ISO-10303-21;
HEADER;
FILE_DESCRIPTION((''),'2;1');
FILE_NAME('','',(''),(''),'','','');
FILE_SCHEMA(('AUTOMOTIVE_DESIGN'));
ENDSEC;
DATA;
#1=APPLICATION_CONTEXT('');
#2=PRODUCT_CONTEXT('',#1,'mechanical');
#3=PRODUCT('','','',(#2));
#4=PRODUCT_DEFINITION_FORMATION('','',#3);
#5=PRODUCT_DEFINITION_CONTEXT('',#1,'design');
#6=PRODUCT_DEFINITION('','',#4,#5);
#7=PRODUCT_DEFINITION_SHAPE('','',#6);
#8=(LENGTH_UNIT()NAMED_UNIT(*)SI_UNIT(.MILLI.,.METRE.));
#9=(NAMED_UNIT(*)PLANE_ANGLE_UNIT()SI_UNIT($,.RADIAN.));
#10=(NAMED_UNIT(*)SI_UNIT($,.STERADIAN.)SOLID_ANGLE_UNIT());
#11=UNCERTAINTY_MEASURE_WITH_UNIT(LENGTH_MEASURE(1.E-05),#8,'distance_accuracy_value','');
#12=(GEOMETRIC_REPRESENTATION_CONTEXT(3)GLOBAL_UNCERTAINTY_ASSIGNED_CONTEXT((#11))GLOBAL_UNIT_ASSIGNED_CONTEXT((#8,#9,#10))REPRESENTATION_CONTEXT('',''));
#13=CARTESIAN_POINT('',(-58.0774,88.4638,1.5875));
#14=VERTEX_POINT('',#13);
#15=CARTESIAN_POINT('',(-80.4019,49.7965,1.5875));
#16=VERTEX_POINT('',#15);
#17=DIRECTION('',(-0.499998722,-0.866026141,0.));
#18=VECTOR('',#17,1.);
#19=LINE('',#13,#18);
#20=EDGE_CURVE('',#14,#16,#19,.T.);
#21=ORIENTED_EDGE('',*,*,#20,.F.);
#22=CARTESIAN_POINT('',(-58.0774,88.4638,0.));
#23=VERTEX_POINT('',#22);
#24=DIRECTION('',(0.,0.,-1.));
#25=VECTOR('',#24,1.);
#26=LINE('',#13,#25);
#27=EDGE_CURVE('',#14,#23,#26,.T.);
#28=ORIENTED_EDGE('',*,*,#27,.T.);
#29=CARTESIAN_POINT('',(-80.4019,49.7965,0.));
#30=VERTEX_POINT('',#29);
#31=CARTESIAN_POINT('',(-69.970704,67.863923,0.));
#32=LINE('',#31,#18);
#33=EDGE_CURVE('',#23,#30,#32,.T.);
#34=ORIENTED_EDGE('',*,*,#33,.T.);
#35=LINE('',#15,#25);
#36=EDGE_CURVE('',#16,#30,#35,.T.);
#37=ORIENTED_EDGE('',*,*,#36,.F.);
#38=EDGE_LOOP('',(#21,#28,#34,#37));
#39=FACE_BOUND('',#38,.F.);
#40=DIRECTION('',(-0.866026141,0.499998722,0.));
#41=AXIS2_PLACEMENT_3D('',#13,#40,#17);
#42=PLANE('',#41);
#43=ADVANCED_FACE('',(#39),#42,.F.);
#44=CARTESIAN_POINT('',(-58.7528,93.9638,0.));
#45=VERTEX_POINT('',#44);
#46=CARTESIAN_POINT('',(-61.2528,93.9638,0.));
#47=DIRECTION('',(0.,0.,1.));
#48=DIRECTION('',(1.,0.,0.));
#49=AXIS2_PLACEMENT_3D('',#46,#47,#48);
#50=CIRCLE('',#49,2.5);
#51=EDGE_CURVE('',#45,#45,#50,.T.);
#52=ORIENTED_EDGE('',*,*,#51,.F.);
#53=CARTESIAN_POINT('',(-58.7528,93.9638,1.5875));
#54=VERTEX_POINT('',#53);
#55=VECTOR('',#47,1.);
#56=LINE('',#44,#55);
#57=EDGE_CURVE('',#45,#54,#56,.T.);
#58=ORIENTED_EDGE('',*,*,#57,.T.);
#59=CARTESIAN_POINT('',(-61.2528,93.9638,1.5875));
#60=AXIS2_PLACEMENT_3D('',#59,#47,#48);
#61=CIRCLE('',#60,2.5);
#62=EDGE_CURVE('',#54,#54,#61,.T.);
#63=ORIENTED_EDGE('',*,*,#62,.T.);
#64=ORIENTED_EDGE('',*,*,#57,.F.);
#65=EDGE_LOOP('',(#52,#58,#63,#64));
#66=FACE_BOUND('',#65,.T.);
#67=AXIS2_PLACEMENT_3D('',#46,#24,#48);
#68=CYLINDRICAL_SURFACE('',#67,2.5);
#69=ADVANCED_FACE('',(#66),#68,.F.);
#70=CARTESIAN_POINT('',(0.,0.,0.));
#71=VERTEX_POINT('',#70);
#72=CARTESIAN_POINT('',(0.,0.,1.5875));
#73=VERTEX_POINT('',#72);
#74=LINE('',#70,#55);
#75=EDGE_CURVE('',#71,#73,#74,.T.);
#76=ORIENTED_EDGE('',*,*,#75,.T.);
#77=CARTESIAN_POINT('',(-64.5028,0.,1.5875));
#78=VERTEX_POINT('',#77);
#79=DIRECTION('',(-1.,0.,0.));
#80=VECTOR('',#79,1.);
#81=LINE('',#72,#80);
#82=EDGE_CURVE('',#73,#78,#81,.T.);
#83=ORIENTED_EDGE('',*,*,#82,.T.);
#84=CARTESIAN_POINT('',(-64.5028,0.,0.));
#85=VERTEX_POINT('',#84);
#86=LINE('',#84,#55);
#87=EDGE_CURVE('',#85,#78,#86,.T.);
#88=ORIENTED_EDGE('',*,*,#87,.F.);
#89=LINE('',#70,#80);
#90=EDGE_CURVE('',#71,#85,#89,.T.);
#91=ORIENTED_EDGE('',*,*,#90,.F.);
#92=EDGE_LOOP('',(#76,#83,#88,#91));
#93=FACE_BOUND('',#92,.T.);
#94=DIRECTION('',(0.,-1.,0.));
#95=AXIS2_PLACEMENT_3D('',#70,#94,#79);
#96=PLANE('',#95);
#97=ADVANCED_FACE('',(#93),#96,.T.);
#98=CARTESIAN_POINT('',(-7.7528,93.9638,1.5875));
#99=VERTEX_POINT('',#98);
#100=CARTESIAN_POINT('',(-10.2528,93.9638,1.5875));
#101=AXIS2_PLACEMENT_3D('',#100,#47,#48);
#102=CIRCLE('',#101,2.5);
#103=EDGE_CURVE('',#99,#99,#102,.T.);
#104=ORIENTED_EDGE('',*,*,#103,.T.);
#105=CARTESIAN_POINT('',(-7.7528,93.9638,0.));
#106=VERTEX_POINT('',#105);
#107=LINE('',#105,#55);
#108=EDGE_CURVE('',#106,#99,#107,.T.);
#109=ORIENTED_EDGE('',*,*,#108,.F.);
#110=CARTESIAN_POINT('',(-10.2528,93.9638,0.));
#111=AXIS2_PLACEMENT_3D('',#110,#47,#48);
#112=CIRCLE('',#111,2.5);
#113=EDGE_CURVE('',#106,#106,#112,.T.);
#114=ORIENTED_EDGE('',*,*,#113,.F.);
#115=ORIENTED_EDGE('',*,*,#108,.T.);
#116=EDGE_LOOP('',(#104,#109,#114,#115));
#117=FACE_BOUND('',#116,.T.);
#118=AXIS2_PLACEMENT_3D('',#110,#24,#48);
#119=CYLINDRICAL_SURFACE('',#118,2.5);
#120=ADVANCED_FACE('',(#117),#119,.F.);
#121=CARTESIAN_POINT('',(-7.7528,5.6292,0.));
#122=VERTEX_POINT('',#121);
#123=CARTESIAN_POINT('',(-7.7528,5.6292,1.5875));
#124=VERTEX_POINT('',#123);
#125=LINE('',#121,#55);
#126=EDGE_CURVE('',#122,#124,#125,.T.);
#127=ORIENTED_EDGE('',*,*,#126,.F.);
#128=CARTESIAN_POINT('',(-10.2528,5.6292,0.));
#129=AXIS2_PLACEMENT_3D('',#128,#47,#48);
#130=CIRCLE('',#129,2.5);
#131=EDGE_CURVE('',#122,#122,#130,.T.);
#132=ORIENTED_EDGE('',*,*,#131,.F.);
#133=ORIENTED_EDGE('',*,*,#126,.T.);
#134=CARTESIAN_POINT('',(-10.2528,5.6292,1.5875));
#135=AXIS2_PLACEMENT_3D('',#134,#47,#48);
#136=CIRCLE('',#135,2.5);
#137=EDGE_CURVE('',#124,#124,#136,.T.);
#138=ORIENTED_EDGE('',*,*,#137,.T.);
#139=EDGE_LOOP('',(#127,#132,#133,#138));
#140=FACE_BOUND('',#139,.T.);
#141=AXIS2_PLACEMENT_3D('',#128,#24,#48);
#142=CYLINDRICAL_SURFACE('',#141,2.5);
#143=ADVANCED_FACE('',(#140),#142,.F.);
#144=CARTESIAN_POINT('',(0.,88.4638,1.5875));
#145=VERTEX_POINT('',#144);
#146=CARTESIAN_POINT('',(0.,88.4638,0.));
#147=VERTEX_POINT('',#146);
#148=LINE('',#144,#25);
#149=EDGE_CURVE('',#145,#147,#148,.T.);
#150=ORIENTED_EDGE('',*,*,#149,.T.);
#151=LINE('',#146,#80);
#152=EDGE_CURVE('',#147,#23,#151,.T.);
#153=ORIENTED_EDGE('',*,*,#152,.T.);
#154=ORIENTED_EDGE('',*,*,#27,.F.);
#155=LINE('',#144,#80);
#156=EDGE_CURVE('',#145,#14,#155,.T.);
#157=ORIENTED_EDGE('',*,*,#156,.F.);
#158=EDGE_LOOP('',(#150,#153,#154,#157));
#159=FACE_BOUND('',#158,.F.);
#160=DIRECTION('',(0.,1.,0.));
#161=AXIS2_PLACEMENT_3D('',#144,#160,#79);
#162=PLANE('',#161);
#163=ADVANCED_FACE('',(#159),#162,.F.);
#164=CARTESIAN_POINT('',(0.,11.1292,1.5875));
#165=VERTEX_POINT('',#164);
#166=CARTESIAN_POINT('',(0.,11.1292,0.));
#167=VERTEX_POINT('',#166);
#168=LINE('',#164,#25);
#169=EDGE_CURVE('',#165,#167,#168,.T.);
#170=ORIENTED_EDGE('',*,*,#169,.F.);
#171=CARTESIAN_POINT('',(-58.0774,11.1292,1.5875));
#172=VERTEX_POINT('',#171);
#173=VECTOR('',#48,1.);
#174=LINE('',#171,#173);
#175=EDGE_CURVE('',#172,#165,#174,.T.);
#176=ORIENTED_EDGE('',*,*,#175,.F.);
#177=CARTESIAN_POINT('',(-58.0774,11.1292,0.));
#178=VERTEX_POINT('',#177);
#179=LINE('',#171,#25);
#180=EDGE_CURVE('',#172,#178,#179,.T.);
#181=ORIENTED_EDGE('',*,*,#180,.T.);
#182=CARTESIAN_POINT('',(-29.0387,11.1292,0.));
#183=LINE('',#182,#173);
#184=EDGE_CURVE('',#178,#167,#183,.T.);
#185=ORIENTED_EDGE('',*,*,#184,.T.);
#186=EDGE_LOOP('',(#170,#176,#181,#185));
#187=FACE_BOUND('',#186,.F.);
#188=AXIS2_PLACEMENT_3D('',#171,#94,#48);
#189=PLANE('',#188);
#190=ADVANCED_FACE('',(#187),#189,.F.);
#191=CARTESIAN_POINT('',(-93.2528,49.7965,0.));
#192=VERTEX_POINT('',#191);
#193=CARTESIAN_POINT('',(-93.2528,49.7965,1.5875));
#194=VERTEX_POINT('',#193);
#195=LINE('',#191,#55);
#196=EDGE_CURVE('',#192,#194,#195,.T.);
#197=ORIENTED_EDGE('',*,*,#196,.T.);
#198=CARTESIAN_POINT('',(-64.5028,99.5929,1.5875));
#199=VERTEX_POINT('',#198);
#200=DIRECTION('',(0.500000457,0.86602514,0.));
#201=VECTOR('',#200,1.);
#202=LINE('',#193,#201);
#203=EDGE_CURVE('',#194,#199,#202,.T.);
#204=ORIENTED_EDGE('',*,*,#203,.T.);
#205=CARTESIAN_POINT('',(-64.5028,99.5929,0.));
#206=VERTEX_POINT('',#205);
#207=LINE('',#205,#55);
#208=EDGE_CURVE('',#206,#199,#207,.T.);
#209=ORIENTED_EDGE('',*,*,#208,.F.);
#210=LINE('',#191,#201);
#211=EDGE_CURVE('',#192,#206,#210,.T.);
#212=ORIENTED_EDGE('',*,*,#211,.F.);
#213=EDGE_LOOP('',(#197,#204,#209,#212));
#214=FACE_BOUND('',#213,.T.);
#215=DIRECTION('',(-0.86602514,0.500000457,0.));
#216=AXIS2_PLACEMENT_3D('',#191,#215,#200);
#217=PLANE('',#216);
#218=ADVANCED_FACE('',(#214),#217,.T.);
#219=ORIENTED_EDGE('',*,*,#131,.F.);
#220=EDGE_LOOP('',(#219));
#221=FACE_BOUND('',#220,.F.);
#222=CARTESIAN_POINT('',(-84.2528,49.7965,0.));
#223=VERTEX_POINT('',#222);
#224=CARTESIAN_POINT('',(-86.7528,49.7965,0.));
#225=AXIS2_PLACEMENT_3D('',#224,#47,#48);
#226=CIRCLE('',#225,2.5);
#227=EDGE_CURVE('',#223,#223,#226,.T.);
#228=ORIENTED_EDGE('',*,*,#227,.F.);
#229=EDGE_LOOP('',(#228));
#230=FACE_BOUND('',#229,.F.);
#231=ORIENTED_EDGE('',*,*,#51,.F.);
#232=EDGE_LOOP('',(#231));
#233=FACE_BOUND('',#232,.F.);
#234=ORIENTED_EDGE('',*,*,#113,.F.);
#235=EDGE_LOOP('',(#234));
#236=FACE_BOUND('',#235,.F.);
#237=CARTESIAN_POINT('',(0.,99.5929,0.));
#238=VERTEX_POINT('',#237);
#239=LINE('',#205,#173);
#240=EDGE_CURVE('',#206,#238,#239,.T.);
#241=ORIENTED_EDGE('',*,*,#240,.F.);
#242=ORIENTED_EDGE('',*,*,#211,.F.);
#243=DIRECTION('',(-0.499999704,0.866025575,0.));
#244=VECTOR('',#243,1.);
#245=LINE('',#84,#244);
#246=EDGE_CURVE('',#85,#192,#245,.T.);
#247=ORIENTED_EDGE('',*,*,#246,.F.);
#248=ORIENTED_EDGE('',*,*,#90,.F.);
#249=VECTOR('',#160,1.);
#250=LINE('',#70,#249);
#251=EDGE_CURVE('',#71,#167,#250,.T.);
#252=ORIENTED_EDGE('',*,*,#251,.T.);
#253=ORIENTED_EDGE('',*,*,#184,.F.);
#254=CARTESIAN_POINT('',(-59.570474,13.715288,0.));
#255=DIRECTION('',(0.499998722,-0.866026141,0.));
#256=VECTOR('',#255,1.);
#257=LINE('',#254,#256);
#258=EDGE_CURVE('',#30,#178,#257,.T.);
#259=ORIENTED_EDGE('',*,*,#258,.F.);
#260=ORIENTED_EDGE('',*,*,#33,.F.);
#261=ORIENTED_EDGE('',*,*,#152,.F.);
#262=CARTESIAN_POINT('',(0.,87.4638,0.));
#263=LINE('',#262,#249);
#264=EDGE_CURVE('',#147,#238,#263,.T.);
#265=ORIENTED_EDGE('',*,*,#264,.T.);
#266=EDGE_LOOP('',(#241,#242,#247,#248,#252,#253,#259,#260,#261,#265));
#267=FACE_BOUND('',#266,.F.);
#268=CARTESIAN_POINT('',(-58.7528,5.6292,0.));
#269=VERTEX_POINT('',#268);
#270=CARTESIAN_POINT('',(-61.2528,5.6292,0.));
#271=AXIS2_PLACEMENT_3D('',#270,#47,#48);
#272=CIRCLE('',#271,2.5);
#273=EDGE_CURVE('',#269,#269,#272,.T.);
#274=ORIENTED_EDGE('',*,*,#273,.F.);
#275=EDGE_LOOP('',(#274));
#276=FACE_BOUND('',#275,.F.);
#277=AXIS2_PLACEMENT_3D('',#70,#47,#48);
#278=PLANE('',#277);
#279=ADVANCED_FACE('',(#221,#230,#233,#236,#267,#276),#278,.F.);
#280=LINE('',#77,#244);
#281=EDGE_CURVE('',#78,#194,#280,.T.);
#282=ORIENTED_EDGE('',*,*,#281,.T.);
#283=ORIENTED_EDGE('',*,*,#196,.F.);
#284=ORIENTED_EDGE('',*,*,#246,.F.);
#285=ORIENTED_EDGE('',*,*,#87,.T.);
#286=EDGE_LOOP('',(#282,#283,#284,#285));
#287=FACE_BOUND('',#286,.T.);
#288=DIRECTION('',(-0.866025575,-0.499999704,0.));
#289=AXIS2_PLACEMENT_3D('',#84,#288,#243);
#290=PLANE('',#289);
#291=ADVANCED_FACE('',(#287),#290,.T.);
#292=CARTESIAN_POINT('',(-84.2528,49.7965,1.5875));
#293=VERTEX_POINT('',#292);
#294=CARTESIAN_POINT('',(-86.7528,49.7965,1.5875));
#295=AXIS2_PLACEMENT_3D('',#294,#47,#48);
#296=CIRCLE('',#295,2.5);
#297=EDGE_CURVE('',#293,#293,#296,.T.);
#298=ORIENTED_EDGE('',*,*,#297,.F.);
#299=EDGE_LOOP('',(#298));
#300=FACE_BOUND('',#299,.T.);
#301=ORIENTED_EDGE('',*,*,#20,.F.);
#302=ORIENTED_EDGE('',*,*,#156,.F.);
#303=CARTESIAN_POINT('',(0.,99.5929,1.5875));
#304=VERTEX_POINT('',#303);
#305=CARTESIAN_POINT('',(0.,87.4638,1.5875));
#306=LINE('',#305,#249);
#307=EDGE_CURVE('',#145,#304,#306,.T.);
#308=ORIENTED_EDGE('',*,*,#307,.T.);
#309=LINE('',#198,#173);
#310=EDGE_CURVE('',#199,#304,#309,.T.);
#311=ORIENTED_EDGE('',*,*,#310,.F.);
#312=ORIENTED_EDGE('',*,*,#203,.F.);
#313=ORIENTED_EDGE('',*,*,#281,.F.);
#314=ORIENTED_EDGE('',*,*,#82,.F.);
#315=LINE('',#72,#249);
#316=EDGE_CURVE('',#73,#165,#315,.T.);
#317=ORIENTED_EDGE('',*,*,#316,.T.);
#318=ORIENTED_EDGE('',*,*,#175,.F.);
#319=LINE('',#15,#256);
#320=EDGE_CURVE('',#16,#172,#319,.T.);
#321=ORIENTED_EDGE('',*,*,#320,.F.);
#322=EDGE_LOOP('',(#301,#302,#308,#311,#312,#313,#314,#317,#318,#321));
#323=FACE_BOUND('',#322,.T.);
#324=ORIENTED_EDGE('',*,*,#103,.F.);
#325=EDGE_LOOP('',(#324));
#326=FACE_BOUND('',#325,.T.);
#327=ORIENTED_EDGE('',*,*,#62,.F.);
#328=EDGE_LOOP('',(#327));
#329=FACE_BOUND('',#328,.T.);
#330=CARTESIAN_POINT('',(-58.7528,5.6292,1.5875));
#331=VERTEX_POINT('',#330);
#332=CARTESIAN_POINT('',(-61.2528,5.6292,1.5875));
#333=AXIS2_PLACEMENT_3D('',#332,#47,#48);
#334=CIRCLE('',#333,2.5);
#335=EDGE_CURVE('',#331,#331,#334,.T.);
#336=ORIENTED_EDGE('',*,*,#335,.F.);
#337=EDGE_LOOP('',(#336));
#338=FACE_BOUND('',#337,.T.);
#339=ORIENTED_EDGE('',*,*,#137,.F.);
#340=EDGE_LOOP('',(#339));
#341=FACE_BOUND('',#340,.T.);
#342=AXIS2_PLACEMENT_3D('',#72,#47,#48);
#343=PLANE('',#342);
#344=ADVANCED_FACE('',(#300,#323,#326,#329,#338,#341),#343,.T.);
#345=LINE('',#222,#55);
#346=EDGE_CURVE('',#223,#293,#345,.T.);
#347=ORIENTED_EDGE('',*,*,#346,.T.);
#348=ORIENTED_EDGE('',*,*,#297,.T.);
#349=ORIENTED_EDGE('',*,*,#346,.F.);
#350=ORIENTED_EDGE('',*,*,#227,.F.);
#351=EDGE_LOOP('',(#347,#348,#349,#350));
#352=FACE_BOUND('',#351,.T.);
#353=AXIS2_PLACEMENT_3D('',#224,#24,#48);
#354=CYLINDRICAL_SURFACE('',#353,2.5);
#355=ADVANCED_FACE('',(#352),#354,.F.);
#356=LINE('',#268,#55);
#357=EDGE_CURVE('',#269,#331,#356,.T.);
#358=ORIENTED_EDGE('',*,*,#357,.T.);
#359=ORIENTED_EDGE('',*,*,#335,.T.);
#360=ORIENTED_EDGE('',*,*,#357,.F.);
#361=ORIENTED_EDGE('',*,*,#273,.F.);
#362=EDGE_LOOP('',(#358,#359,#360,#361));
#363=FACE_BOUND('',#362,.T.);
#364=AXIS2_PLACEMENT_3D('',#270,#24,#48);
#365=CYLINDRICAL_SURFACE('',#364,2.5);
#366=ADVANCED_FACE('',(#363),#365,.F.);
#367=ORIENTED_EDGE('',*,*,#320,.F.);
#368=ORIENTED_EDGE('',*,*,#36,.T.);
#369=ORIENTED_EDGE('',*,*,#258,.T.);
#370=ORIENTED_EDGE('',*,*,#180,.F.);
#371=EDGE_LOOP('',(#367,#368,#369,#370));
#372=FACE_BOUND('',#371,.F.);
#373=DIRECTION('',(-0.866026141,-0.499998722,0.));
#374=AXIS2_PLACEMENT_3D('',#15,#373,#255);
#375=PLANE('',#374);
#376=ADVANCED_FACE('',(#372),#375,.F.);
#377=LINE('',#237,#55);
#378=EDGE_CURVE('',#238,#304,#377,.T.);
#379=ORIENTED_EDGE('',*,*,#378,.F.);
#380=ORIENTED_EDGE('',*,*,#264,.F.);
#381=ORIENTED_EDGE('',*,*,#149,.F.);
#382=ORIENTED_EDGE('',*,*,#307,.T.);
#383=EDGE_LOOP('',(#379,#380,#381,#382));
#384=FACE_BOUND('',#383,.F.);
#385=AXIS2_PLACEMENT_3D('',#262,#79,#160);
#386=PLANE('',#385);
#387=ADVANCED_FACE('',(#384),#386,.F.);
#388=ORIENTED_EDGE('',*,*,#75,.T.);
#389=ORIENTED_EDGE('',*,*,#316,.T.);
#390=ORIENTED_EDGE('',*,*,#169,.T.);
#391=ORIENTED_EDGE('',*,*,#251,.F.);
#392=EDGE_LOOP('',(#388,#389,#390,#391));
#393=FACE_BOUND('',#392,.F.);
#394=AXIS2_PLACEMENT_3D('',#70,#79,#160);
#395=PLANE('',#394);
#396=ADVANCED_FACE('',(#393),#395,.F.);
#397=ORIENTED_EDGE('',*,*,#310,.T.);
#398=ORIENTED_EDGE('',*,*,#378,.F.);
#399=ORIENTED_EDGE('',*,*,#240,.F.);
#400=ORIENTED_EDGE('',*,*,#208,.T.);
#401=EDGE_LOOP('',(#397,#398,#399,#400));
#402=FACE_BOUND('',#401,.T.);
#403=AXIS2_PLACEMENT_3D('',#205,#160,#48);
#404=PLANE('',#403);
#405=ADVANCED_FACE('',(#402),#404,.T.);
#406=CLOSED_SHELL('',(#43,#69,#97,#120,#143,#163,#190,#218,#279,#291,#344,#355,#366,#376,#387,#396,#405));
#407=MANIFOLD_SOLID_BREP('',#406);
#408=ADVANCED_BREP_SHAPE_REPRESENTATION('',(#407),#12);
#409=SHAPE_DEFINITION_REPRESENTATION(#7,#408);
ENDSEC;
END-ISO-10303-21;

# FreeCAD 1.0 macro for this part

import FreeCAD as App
import Part
import Sketcher

V = App.Vector
Q = App.Units.Quantity


def add_polygon(sketch, points):
    """Adds a closed chain of lines whose ends are joined by coincident constraints."""
    first, n = sketch.GeometryCount, len(points)
    for a, b in zip(points, points[1:] + points[:1]):
        sketch.addGeometry(Part.LineSegment(App.Vector(*a, 0), App.Vector(*b, 0)), False)
    for i in range(n):
        sketch.addConstraint(Sketcher.Constraint("Coincident", first + i, 2, first + (i + 1) % n, 1))

doc = App.newDocument("Part")
body = doc.addObject("PartDesign::Body", "Body")

sketch1 = doc.addObject("Sketcher::SketchObject", "Sketch")
body.addObject(sketch1)
sketch1.AttachmentSupport = (doc.XY_Plane, [""])
sketch1.MapMode = "FlatFace"
add_polygon(sketch1, [(-64.5028, 0), (0, 0), (0, 12.1292), (-57.5, 12.1292), (-79.2472, 49.7965), (-57.5, 87.4638), (0, 87.4638), (0, 99.5929), (-64.5028, 99.5929), (-93.2528, 49.7965)])
sketch1.addGeometry(Part.Circle(V(-61.2528, 5.6292, 0), V(0, 0, 1), 2.5), False)
sketch1.addGeometry(Part.Circle(V(-10.2528, 5.6292, 0), V(0, 0, 1), 2.5), False)
sketch1.addGeometry(Part.Circle(V(-86.7528, 49.7965, 0), V(0, 0, 1), 2.5), False)
sketch1.addGeometry(Part.Circle(V(-61.2528, 93.9638, 0), V(0, 0, 1), 2.5), False)
sketch1.addGeometry(Part.Circle(V(-10.2528, 93.9638, 0), V(0, 0, 1), 2.5), False)
sketch1.addConstraint(Sketcher.Constraint("Horizontal", 0))
sketch1.addConstraint(Sketcher.Constraint("Vertical", 1))
sketch1.addConstraint(Sketcher.Constraint("Horizontal", 2))
sketch1.addConstraint(Sketcher.Constraint("Horizontal", 5))
sketch1.addConstraint(Sketcher.Constraint("Vertical", 6))
sketch1.addConstraint(Sketcher.Constraint("Horizontal", 7))
sketch1.addConstraint(Sketcher.Constraint("Coincident", 0, 2, -1, 1))
sketch1.addConstraint(Sketcher.Constraint("Equal", 10, 11))
sketch1.addConstraint(Sketcher.Constraint("Equal", 11, 12))
sketch1.addConstraint(Sketcher.Constraint("Equal", 12, 13))
sketch1.addConstraint(Sketcher.Constraint("Equal", 13, 14))
sketch1.addConstraint(Sketcher.Constraint("PointOnObject", 5, 2, -2))
sketch1.addConstraint(Sketcher.Constraint("Parallel", 4, 8))
sketch1.addConstraint(Sketcher.Constraint("Parallel", 3, 9))
sketch1.addConstraint(Sketcher.Constraint("Horizontal", 10, 3, 11, 3))
sketch1.addConstraint(Sketcher.Constraint("Horizontal", 13, 3, 14, 3))
sketch1.addConstraint(Sketcher.Constraint("Horizontal", 12, 3, 3, 2))
sketch1.addConstraint(Sketcher.Constraint("Horizontal", 3, 2, 8, 2))
sketch1.addConstraint(Sketcher.Constraint("Vertical", 10, 3, 13, 3))
sketch1.addConstraint(Sketcher.Constraint("Vertical", 11, 3, 14, 3))
sketch1.addConstraint(Sketcher.Constraint("Vertical", 2, 2, 4, 2))
sketch1.addConstraint(Sketcher.Constraint("Vertical", 7, 2, 9, 2))
sketch1.addConstraint(Sketcher.Constraint("Equal", 1, 6))
sketch1.addConstraint(Sketcher.Constraint("Diameter", 10, Q("5 mm")))
sketch1.addConstraint(Sketcher.Constraint("Angle", 3, Q("120 deg")))
sketch1.addConstraint(Sketcher.Constraint("DistanceX", 2, 2, 2, 1, Q("57.5 mm")))
sketch1.addConstraint(Sketcher.Constraint("Distance", 8, Q("57.5 mm")))
sketch1.addConstraint(Sketcher.Constraint("DistanceY", 11, 3, 1, 2, Q("6.5 mm")))
sketch1.addConstraint(Sketcher.Constraint("DistanceY", 4, 2, 13, 3, Q("6.5 mm")))
sketch1.addConstraint(Sketcher.Constraint("DistanceX", 8, 2, 12, 3, Q("6.5 mm")))
sketch1.addConstraint(Sketcher.Constraint("DistanceY", 6, 1, 6, 2, Q("12.129 mm")))
sketch1.addConstraint(Sketcher.Constraint("DistanceX", 7, 2, 13, 3, Q("3.25 mm")))
sketch1.addConstraint(Sketcher.Constraint("DistanceX", 10, 3, 11, 3, Q("51 mm")))
sketch1.addConstraint(Sketcher.Constraint("DistanceX", 11, 3, -1, 1, Q("10.2528 mm")))
pad1 = doc.addObject("PartDesign::Pad", "Pad")
body.addObject(pad1)
pad1.Profile = sketch1
pad1.Length = 1.5875

sketch2 = doc.addObject("Sketcher::SketchObject", "Sketch001")
body.addObject(sketch2)
sketch2.AttachmentSupport = (doc.XY_Plane, [""])
sketch2.MapMode = "FlatFace"
sketch2.AttachmentOffset = App.Placement(V(0, 0, 1.5875), App.Rotation())
add_polygon(sketch2, [(-79.2472, 49.7965), (-57.5, 87.4638), (0, 87.4638), (0, 88.4638), (-58.0774, 88.4638), (-80.4019, 49.7965), (-58.0774, 11.1292), (0, 11.1292), (0, 12.1292), (-57.5, 12.1292)])
sketch2.addConstraint(Sketcher.Constraint("Horizontal", 1))
sketch2.addConstraint(Sketcher.Constraint("Vertical", 2))
sketch2.addConstraint(Sketcher.Constraint("Horizontal", 3))
sketch2.addConstraint(Sketcher.Constraint("Horizontal", 6))
sketch2.addConstraint(Sketcher.Constraint("Vertical", 7))
sketch2.addConstraint(Sketcher.Constraint("Horizontal", 8))
sketch2.addConstraint(Sketcher.Constraint("PointOnObject", 1, 2, -2))
sketch2.addConstraint(Sketcher.Constraint("PointOnObject", 6, 2, -2))
sketch2.addConstraint(Sketcher.Constraint("Parallel", 0, 4))
sketch2.addConstraint(Sketcher.Constraint("Parallel", 5, 9))
sketch2.addConstraint(Sketcher.Constraint("Horizontal", 4, 2, 9, 2))
sketch2.addConstraint(Sketcher.Constraint("Vertical", 3, 2, 5, 2))
sketch2.addConstraint(Sketcher.Constraint("Vertical", 0, 2, 8, 2))
sketch2.addConstraint(Sketcher.Constraint("Equal", 2, 7))
sketch2.addConstraint(Sketcher.Constraint("DistanceY", 2, 1, 2, 2, Q("1 mm")))
sketch2.addConstraint(Sketcher.Constraint("Angle", 0, Q("60 deg")))
sketch2.addConstraint(Sketcher.Constraint("DistanceX", 1, 1, 1, 2, Q("57.5 mm")))
sketch2.addConstraint(Sketcher.Constraint("Distance", 4, Q("44.649 mm")))
sketch2.addConstraint(Sketcher.Constraint("DistanceX", 3, 2, 3, 1, Q("58.0774 mm")))
sketch2.addConstraint(Sketcher.Constraint("DistanceY", -1, 1, 0, 2, Q("87.4638 mm")))
pocket1 = doc.addObject("PartDesign::Pocket", "Pocket")
body.addObject(pocket1)
pocket1.Profile = sketch2
pocket1.Type = "ThroughAll"

doc.recompute()
